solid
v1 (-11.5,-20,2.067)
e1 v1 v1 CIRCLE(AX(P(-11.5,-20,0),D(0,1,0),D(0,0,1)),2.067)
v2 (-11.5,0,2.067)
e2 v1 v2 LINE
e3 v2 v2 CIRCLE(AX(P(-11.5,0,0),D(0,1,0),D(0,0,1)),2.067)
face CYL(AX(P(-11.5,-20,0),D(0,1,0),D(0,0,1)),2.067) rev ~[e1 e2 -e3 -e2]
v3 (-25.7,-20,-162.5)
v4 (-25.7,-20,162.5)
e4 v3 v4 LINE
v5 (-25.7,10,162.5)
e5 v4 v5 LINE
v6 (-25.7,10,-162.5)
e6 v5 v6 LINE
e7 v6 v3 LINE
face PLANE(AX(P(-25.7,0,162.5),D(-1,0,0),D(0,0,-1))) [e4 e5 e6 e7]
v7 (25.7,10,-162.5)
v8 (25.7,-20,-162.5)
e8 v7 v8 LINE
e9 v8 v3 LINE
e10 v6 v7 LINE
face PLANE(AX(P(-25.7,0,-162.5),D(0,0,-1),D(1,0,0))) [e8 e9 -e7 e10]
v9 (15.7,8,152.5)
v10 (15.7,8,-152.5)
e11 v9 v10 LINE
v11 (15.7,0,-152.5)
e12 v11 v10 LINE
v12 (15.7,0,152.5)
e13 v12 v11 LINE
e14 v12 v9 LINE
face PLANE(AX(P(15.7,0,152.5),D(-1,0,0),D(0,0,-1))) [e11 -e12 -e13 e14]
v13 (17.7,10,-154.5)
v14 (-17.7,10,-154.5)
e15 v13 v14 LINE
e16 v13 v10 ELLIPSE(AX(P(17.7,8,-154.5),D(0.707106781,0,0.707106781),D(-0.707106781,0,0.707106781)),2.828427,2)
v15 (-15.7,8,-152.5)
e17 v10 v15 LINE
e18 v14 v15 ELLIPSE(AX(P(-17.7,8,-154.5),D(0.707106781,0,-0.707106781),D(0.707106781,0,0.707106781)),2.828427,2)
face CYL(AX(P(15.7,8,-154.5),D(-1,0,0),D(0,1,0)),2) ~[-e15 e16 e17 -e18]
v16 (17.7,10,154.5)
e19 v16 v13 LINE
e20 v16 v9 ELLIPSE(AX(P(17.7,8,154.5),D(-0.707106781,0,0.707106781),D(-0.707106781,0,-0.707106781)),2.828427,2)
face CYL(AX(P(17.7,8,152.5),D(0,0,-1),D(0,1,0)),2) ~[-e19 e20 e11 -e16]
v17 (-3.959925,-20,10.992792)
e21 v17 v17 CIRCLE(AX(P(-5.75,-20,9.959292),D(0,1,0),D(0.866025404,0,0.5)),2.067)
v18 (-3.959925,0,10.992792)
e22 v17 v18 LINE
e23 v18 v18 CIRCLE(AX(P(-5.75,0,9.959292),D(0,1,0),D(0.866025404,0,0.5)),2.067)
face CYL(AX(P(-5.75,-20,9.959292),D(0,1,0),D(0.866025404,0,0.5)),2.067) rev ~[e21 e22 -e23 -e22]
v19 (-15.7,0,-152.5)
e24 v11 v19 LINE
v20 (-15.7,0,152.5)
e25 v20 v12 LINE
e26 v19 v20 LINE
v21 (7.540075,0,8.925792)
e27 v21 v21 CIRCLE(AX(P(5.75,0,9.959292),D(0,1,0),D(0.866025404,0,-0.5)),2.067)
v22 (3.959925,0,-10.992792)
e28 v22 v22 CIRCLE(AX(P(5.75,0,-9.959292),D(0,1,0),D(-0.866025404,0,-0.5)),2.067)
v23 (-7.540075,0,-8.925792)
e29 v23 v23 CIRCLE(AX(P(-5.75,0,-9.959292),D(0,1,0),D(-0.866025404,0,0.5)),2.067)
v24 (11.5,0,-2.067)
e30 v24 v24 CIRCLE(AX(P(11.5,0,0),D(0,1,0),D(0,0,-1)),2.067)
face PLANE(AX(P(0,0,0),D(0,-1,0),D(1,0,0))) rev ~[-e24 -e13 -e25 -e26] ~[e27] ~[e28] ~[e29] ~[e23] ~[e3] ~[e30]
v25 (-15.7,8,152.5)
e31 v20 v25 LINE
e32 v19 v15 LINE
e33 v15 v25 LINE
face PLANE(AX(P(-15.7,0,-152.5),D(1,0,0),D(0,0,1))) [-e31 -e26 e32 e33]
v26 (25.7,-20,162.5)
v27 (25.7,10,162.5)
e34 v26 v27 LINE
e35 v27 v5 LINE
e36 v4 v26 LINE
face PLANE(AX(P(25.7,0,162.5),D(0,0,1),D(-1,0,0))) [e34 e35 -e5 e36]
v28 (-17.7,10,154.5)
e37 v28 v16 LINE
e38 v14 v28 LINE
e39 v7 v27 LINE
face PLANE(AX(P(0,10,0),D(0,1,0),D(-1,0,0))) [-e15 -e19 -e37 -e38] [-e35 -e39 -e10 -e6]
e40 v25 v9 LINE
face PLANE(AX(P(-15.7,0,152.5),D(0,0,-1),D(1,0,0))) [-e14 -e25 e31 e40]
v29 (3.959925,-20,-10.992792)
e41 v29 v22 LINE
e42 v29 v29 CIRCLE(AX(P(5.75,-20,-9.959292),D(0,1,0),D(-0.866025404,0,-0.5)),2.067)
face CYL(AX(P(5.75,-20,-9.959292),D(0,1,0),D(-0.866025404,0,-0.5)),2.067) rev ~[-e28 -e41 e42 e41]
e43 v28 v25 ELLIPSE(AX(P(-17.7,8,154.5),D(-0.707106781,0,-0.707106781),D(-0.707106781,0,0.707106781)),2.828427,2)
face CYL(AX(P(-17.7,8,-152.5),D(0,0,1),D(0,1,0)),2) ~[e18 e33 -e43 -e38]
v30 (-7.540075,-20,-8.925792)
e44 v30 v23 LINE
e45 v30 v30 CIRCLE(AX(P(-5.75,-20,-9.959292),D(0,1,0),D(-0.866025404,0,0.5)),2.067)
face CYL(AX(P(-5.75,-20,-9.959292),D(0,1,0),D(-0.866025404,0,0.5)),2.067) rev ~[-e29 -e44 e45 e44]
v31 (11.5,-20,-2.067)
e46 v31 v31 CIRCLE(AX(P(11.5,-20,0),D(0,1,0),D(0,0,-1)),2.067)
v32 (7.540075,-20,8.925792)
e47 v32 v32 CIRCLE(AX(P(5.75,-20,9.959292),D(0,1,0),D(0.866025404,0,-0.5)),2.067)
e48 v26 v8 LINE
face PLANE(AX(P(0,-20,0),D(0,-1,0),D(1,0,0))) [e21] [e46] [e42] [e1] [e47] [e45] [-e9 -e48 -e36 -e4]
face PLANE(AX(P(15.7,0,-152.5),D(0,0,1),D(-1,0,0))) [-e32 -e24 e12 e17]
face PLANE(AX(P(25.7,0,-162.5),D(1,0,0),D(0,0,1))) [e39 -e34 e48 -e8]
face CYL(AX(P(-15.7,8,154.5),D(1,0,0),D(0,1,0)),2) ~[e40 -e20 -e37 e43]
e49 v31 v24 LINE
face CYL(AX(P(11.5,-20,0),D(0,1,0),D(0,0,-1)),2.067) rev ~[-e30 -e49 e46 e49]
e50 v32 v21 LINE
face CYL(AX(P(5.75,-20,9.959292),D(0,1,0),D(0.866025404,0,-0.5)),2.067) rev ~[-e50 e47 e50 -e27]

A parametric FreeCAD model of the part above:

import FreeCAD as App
import Part
import Sketcher
Q = App.Units.Quantity


def edges_at(feature, points):
    """Names of the edges that pass closest to the given points."""
    edges = feature.Shape.Edges
    near = lambda p: min(range(len(edges)), key=lambda i: edges[i].distToShape(Part.Vertex(*p))[0])
    return sorted({f"Edge{near(p) + 1}" for p in points})

doc = App.newDocument("Part")
body = doc.addObject("PartDesign::Body", "Body")

# Sketch on XZ plane
sketch1 = body.newObject("Sketcher::SketchObject", "Sketch")
sketch1.AttachmentSupport = (doc.getObject("XZ_Plane"), [""])
sketch1.MapMode = "FlatFace"
sketch1.addGeometry(Part.LineSegment(App.Vector(-26, -162, 0), App.Vector(-26, 162, 0)), False)
sketch1.addGeometry(Part.LineSegment(App.Vector(-26, 162, 0), App.Vector(26, 162, 0)), False)
sketch1.addGeometry(Part.LineSegment(App.Vector(26, 162, 0), App.Vector(26, -162, 0)), False)
sketch1.addGeometry(Part.LineSegment(App.Vector(26, -162, 0), App.Vector(-26, -162, 0)), False)
sketch1.addGeometry(Part.LineSegment(App.Vector(-16, -152, 0), App.Vector(16, -152, 0)), False)
sketch1.addGeometry(Part.LineSegment(App.Vector(16, -152, 0), App.Vector(16, 152, 0)), False)
sketch1.addGeometry(Part.LineSegment(App.Vector(16, 152, 0), App.Vector(-16, 152, 0)), False)
sketch1.addGeometry(Part.LineSegment(App.Vector(-16, 152, 0), App.Vector(-16, -152, 0)), False)
sketch1.addConstraint(Sketcher.Constraint("Coincident", 0, 2, 1, 1))
sketch1.addConstraint(Sketcher.Constraint("Coincident", 1, 2, 2, 1))
sketch1.addConstraint(Sketcher.Constraint("Coincident", 2, 2, 3, 1))
sketch1.addConstraint(Sketcher.Constraint("Coincident", 3, 2, 0, 1))
sketch1.addConstraint(Sketcher.Constraint("Coincident", 4, 2, 5, 1))
sketch1.addConstraint(Sketcher.Constraint("Coincident", 5, 2, 6, 1))
sketch1.addConstraint(Sketcher.Constraint("Coincident", 6, 2, 7, 1))
sketch1.addConstraint(Sketcher.Constraint("Coincident", 7, 2, 4, 1))
sketch1.addConstraint(Sketcher.Constraint("Vertical", 0))
sketch1.addConstraint(Sketcher.Constraint("Horizontal", 1))
sketch1.addConstraint(Sketcher.Constraint("Vertical", 2))
sketch1.addConstraint(Sketcher.Constraint("Horizontal", 3))
sketch1.addConstraint(Sketcher.Constraint("Horizontal", 4))
sketch1.addConstraint(Sketcher.Constraint("Vertical", 5))
sketch1.addConstraint(Sketcher.Constraint("Horizontal", 6))
sketch1.addConstraint(Sketcher.Constraint("Vertical", 7))
sketch1.addConstraint(Sketcher.Constraint("Symmetric", 0, 2, 2, 2, -1, 1))
sketch1.addConstraint(Sketcher.Constraint("Symmetric", 4, 2, 6, 2, -1, 1))
sketch1.addConstraint(Sketcher.Constraint("DistanceY", 5, 1, 5, 2, Q("305 mm")))
sketch1.addConstraint(Sketcher.Constraint("DistanceX", 4, 1, 4, 2, Q("31.4 mm")))
sketch1.addConstraint(Sketcher.Constraint("DistanceX", 4, 2, 2, 2, Q("10 mm")))
sketch1.addConstraint(Sketcher.Constraint("DistanceY", 2, 2, 4, 2, Q("10 mm")))
pad1 = body.newObject("PartDesign::Pad", "Pad")
pad1.Profile = sketch1
pad1.Length = 10
pad1.Reversed = True

# Sketch on XZ plane
sketch2 = body.newObject("Sketcher::SketchObject", "Sketch001")
sketch2.AttachmentSupport = (doc.getObject("XZ_Plane"), [""])
sketch2.MapMode = "FlatFace"
sketch2.addGeometry(Part.LineSegment(App.Vector(26, -162, 0), App.Vector(26, 162, 0)), False)
sketch2.addGeometry(Part.LineSegment(App.Vector(26, 162, 0), App.Vector(-26, 162, 0)), False)
sketch2.addGeometry(Part.LineSegment(App.Vector(-26, 162, 0), App.Vector(-26, -162, 0)), False)
sketch2.addGeometry(Part.LineSegment(App.Vector(-26, -162, 0), App.Vector(26, -162, 0)), False)
sketch2.addConstraint(Sketcher.Constraint("Coincident", 0, 2, 1, 1))
sketch2.addConstraint(Sketcher.Constraint("Coincident", 1, 2, 2, 1))
sketch2.addConstraint(Sketcher.Constraint("Coincident", 2, 2, 3, 1))
sketch2.addConstraint(Sketcher.Constraint("Coincident", 3, 2, 0, 1))
sketch2.addConstraint(Sketcher.Constraint("Vertical", 0))
sketch2.addConstraint(Sketcher.Constraint("Horizontal", 1))
sketch2.addConstraint(Sketcher.Constraint("Vertical", 2))
sketch2.addConstraint(Sketcher.Constraint("Horizontal", 3))
sketch2.addConstraint(Sketcher.Constraint("Symmetric", 0, 2, 2, 2, -1, 1))
sketch2.addConstraint(Sketcher.Constraint("DistanceY", 0, 1, 0, 2, Q("325 mm")))
sketch2.addConstraint(Sketcher.Constraint("DistanceX", 1, 2, 1, 1, Q("51.4 mm")))
pad2 = body.newObject("PartDesign::Pad", "Pad001")
pad2.Profile = sketch2
pad2.Length = 20

# Sketch on XZ plane
sketch3 = body.newObject("Sketcher::SketchObject", "Sketch002")
sketch3.AttachmentSupport = (doc.getObject("XZ_Plane"), [""])
sketch3.MapMode = "FlatFace"
sketch3.AttachmentOffset = App.Placement(App.Vector(0, 0, 20), App.Rotation())
sketch3.addGeometry(Part.Circle(App.Vector(11.5, 0, 0), App.Vector(0, 0, 1), 2.1), False)
sketch3.addConstraint(Sketcher.Constraint("PointOnObject", 0, 3, -1))
sketch3.addConstraint(Sketcher.Constraint("Diameter", 0, Q("4.134 mm")))
sketch3.addConstraint(Sketcher.Constraint("DistanceX", -1, 1, 0, 3, Q("11.5 mm")))
doc.recompute()
hole = body.newObject("PartDesign::Hole", "Hole")
hole.Profile = sketch3
hole.ThreadType = "None"
hole.Diameter = 4.134
hole.DepthType = "ThroughAll"
doc.recompute()

polarpattern = body.newObject("PartDesign::PolarPattern", "PolarPattern")
polarpattern.Originals = [hole]
polarpattern.Axis = (doc.getObject("Y_Axis"), [""])
polarpattern.Angle = 360
polarpattern.Occurrences = 6
body.Tip = polarpattern
doc.recompute()

fillet = body.newObject("PartDesign::Fillet", "Fillet")
fillet.Base = (polarpattern, edges_at(polarpattern, [
    (-15.7, 10, 0),
    (0, 10, -152.5),
    (15.7, 10, 0),
    (0, 10, 152.5),
]))
fillet.Radius = 2

doc.recompute()
